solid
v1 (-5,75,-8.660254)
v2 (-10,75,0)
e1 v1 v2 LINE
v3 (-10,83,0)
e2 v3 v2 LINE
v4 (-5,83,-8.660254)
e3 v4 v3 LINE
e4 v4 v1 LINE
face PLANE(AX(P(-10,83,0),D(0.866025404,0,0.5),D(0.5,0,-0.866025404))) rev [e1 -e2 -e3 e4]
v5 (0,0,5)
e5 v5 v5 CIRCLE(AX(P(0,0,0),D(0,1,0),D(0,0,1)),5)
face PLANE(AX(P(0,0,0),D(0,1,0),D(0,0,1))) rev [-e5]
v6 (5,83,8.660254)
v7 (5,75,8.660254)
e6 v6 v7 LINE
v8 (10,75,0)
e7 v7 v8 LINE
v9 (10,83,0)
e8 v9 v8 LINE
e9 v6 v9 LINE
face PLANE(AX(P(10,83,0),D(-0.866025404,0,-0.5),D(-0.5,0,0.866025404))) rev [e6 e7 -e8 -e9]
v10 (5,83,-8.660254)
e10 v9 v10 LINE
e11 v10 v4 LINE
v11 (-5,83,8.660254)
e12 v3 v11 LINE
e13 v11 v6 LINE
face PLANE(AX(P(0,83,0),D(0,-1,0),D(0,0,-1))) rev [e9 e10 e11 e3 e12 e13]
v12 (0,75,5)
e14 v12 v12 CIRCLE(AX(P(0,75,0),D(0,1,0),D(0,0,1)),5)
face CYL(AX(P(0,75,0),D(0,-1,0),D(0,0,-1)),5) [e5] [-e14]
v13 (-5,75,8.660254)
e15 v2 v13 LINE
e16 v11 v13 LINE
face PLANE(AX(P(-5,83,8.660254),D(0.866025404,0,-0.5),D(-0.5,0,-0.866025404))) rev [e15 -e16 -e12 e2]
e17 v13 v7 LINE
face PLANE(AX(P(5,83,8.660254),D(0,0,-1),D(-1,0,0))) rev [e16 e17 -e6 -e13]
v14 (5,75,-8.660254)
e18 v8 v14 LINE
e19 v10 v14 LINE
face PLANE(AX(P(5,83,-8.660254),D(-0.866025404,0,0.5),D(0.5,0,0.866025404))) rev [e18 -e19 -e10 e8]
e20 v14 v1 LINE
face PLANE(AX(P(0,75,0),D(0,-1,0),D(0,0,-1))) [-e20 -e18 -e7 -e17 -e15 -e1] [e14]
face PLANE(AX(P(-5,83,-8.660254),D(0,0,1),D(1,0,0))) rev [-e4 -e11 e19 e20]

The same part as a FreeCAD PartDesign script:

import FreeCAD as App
import Part
import Sketcher
from FreeCAD import Vector
Q = App.Units.Quantity

doc = App.newDocument("Part")
params = doc.addObject("Spreadsheet::Sheet", "Params")
for row, (alias, value) in enumerate([
    ("sketch1_diameter", "10 mm"),
    ("pad1_length", "75 mm"),
    ("sketch2_width", "10 mm"),
    ("sketch2_length", "10 mm"),
    ("pad2_length", "8 mm"),
], start=1):
    params.set(f"A{row}", alias)
    params.set(f"B{row}", "=" + value)
    params.setAlias(f"B{row}", alias)

body = doc.addObject("PartDesign::Body", "Body")

# Sketch on XZ plane
sketch1 = body.newObject("Sketcher::SketchObject", "Sketch")
sketch1.AttachmentSupport = (doc.getObject("XZ_Plane"), [""])
sketch1.MapMode = "FlatFace"
sketch1.addGeometry(Part.Circle(Vector(0, 0, 0), Vector(0, 0, 1), 5), False)
sketch1.addConstraint(Sketcher.Constraint("Coincident", 0, 3, -1, 1))
sketch1.addConstraint(Sketcher.Constraint("Diameter", 0, Q("10 mm")))
sketch1.setExpression("Constraints[1]", "Params.sketch1_diameter")
pad1 = body.newObject("PartDesign::Pad", "Pad")
pad1.Profile = sketch1
pad1.setExpression("Length", "Params.pad1_length")
pad1.Reversed = True

# Sketch on XZ plane
sketch2 = body.newObject("Sketcher::SketchObject", "Sketch001")
sketch2.AttachmentSupport = (doc.getObject("XZ_Plane"), [""])
sketch2.MapMode = "FlatFace"
sketch2.AttachmentOffset = App.Placement(Vector(0, 0, -75), App.Rotation())
sketch2.addGeometry(Part.LineSegment(Vector(5, -8.660254, 0), Vector(-5, -8.660254, 0)), False)
sketch2.addGeometry(Part.LineSegment(Vector(-5, -8.660254, 0), Vector(-10, 0, 0)), False)
sketch2.addGeometry(Part.LineSegment(Vector(-10, 0, 0), Vector(-5, 8.660254, 0)), False)
sketch2.addGeometry(Part.LineSegment(Vector(-5, 8.660254, 0), Vector(5, 8.660254, 0)), False)
sketch2.addGeometry(Part.LineSegment(Vector(5, 8.660254, 0), Vector(10, 0, 0)), False)
sketch2.addGeometry(Part.LineSegment(Vector(10, 0, 0), Vector(5, -8.660254, 0)), False)
sketch2.addConstraint(Sketcher.Constraint("Coincident", 0, 2, 1, 1))
sketch2.addConstraint(Sketcher.Constraint("Coincident", 1, 2, 2, 1))
sketch2.addConstraint(Sketcher.Constraint("Coincident", 2, 2, 3, 1))
sketch2.addConstraint(Sketcher.Constraint("Coincident", 3, 2, 4, 1))
sketch2.addConstraint(Sketcher.Constraint("Coincident", 4, 2, 5, 1))
sketch2.addConstraint(Sketcher.Constraint("Coincident", 5, 2, 0, 1))
sketch2.addConstraint(Sketcher.Constraint("Horizontal", 0))
sketch2.addConstraint(Sketcher.Constraint("Horizontal", 3))
sketch2.addConstraint(Sketcher.Constraint("Symmetric", 0, 2, 3, 2, -1, 1))
sketch2.addConstraint(Sketcher.Constraint("Symmetric", 1, 2, 4, 2, -1, 1))
sketch2.addConstraint(Sketcher.Constraint("PointOnObject", 1, 2, -1))
sketch2.addConstraint(Sketcher.Constraint("Parallel", 2, 5))
sketch2.addConstraint(Sketcher.Constraint("Vertical", 0, 2, 2, 2))
sketch2.addConstraint(Sketcher.Constraint("DistanceX", 0, 2, 0, 1, Q("10 mm")))
sketch2.addConstraint(Sketcher.Constraint("Angle", 1, Q("120 deg")))
sketch2.addConstraint(Sketcher.Constraint("Distance", 1, Q("10 mm")))
sketch2.setExpression("Constraints[13]", "Params.sketch2_width")
sketch2.setExpression("Constraints[15]", "Params.sketch2_length")
pad2 = body.newObject("PartDesign::Pad", "Pad001")
pad2.Profile = sketch2
pad2.setExpression("Length", "Params.pad2_length")
pad2.Reversed = True

doc.recompute()
